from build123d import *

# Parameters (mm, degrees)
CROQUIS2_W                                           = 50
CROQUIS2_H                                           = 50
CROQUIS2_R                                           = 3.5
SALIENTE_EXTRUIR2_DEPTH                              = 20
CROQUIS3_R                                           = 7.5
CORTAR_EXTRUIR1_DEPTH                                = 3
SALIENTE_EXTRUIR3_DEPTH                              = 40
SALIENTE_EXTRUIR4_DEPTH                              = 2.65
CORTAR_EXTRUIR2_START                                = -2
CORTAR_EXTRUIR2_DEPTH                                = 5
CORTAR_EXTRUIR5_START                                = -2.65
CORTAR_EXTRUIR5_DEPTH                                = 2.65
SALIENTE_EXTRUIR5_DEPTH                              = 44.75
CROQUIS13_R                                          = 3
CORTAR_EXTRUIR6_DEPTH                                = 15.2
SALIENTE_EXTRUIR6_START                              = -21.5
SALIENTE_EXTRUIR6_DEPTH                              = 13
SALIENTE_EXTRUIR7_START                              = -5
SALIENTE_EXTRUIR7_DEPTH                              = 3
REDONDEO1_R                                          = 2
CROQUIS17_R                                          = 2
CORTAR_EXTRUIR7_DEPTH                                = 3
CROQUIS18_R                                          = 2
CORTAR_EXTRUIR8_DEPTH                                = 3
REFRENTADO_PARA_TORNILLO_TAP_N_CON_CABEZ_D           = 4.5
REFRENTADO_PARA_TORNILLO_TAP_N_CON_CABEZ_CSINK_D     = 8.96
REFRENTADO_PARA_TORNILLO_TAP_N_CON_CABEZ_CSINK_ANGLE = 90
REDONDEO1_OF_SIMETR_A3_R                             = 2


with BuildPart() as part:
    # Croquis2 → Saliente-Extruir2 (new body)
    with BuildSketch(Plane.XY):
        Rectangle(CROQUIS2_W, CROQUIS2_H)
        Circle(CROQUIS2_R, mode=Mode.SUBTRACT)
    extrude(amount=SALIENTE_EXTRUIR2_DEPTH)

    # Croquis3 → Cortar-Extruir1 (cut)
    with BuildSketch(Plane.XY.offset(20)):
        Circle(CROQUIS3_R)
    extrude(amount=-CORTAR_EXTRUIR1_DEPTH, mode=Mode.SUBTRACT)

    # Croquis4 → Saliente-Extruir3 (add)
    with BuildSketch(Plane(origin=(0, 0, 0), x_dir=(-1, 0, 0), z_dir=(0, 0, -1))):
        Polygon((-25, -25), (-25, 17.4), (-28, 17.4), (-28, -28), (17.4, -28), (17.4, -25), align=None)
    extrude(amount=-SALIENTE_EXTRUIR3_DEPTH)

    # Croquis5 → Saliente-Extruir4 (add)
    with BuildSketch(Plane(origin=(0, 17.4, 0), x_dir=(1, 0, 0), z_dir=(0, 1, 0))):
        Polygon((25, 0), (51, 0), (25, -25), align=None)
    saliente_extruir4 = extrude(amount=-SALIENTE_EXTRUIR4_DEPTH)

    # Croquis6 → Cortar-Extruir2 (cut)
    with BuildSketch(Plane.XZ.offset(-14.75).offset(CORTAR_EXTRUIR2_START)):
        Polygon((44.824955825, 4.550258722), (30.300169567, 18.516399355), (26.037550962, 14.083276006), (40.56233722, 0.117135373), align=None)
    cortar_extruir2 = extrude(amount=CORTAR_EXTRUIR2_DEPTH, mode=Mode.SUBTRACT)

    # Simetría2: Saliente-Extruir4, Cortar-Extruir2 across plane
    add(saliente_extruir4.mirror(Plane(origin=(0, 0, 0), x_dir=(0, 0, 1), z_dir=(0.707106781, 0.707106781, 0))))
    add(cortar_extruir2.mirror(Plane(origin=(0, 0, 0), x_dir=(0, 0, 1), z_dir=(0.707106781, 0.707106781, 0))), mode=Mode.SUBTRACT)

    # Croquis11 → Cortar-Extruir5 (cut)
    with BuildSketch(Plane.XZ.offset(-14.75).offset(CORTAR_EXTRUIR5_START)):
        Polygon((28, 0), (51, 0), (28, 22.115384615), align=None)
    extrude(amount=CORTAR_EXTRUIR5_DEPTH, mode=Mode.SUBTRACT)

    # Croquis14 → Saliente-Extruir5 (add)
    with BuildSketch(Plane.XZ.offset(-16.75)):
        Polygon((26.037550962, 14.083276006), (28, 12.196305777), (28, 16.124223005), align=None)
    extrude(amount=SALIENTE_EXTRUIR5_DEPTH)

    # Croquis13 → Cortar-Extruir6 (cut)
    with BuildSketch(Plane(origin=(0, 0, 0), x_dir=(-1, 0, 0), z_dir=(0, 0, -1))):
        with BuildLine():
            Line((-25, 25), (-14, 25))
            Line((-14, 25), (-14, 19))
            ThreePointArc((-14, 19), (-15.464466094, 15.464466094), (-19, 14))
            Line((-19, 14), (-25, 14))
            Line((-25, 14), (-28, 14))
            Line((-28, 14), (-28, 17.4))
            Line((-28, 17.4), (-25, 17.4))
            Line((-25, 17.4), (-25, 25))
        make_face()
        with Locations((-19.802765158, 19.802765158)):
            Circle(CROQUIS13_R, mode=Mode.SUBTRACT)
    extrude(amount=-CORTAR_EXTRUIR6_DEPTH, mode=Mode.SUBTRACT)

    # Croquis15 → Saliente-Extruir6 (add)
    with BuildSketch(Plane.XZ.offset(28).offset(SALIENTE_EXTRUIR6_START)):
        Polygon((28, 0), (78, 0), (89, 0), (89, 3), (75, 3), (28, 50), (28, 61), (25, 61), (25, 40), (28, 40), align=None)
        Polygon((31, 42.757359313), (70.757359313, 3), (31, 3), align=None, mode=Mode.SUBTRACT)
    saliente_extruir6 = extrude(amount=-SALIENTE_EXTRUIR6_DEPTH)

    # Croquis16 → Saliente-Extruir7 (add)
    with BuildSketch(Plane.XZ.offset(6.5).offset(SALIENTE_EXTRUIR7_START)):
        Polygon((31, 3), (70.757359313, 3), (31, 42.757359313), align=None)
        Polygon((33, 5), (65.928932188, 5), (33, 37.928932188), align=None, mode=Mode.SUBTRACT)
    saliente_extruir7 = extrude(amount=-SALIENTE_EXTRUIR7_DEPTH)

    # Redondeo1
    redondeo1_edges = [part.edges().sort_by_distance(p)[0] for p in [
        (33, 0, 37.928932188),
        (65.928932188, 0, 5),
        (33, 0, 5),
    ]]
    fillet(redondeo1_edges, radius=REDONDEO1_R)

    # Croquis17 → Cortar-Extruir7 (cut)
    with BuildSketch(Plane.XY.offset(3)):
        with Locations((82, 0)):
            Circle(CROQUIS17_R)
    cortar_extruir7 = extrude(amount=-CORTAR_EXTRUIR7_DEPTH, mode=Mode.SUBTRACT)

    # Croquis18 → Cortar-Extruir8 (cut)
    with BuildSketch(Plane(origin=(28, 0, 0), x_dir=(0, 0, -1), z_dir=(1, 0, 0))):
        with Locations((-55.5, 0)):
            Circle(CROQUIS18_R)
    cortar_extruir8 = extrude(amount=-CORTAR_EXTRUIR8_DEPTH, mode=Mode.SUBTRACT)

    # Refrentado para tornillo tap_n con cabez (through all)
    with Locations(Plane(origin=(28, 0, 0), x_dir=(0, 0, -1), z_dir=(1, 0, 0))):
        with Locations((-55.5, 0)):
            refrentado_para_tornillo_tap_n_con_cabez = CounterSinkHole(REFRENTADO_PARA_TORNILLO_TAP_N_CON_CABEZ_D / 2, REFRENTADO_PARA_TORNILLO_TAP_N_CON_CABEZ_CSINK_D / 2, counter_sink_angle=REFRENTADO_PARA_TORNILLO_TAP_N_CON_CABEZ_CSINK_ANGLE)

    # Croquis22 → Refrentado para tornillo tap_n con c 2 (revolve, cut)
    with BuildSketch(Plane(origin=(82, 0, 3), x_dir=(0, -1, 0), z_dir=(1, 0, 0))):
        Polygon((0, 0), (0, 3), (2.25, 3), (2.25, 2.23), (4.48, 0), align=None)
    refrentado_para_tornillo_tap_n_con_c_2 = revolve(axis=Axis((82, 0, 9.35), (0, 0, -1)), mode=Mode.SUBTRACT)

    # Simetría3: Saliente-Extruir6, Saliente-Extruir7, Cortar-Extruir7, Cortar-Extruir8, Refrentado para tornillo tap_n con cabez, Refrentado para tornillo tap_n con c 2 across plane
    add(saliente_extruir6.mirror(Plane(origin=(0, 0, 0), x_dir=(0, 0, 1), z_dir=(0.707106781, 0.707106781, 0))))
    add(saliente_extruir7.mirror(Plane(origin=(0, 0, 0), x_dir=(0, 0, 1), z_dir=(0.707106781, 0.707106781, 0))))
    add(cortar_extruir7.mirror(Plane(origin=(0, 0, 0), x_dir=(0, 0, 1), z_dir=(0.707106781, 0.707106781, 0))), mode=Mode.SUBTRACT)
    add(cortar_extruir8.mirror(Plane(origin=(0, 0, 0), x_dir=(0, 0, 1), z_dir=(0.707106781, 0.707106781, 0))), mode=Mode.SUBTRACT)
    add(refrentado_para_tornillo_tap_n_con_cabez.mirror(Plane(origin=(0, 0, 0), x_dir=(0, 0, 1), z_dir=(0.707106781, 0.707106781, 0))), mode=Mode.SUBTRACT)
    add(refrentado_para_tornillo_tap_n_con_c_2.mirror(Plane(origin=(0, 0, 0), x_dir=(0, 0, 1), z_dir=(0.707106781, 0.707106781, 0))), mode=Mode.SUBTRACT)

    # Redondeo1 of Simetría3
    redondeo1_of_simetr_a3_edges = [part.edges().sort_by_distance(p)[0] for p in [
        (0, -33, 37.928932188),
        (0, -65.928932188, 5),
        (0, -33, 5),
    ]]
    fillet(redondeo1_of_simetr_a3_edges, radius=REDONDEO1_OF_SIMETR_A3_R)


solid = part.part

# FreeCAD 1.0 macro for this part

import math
import FreeCAD as App
import Part
import Sketcher
Q = App.Units.Quantity


def edges_at(feature, points):
    """Names of the edges that pass closest to the given points."""
    edges = feature.Shape.Edges
    near = lambda p: min(range(len(edges)), key=lambda i: edges[i].distToShape(Part.Vertex(*p))[0])
    return sorted({f"Edge{near(p) + 1}" for p in points})


def add_polygon(sketch, points):
    """Adds a closed chain of lines whose ends are joined by coincident constraints."""
    first, n = sketch.GeometryCount, len(points)
    for a, b in zip(points, points[1:] + points[:1]):
        sketch.addGeometry(Part.LineSegment(App.Vector(*a, 0), App.Vector(*b, 0)), False)
    for i in range(n):
        sketch.addConstraint(Sketcher.Constraint("Coincident", first + i, 2, first + (i + 1) % n, 1))

doc = App.newDocument("Part")
body = doc.addObject("PartDesign::Body", "Body")

# Sketch on XY plane
sketch1 = body.newObject("Sketcher::SketchObject", "Sketch")
sketch1.AttachmentSupport = (doc.getObject("XY_Plane"), [""])
sketch1.MapMode = "FlatFace"
add_polygon(sketch1, [(-25, 25), (-25, -25), (25, -25), (25, 25)])  # lines 0-3
sketch1.addGeometry(Part.Circle(App.Vector(0, 0, 0), App.Vector(0, 0, 1), 3.5), False)  # 4
sketch1.addConstraint([
    Sketcher.Constraint("Vertical", 0),
    Sketcher.Constraint("Horizontal", 1),
    Sketcher.Constraint("Vertical", 2),
    Sketcher.Constraint("Horizontal", 3),
    Sketcher.Constraint("Coincident", 4, 3, -1, 1),
    Sketcher.Constraint("Symmetric", 0, 2, 2, 2, -1, 1),
    Sketcher.Constraint("Equal", 3, 0),
    Sketcher.Constraint("Diameter", 4, 7.0),
    Sketcher.Constraint("DistanceX", 1, 1, 1, 2, 50.0),
])
pad1 = body.newObject("PartDesign::Pad", "Pad")
pad1.Profile = sketch1
pad1.Length = 20

# Sketch on XY plane
sketch2 = body.newObject("Sketcher::SketchObject", "Sketch001")
sketch2.AttachmentSupport = (doc.getObject("XY_Plane"), [""])
sketch2.MapMode = "FlatFace"
sketch2.AttachmentOffset = App.Placement(App.Vector(0, 0, 20), App.Rotation())
sketch2.addGeometry(Part.Circle(App.Vector(0, 0, 0), App.Vector(0, 0, 1), 8), False)
sketch2.addConstraint([
    Sketcher.Constraint("Coincident", 0, 3, -1, 1),
    Sketcher.Constraint("Diameter", 0, 15.0),
])
pocket1 = body.newObject("PartDesign::Pocket", "Pocket")
pocket1.Profile = sketch2
pocket1.Length = 3

# Sketch on XY plane
sketch3 = body.newObject("Sketcher::SketchObject", "Sketch002")
sketch3.AttachmentSupport = (doc.getObject("XY_Plane"), [""])
sketch3.MapMode = "FlatFace"
add_polygon(sketch3, [(25, -25), (25, 17.4), (28, 17.4), (28, -28), (-17.4, -28), (-17.4, -25)])  # lines 0-5
sketch3.addConstraint([
    Sketcher.Constraint("Vertical", 0),
    Sketcher.Constraint("Horizontal", 1),
    Sketcher.Constraint("Vertical", 2),
    Sketcher.Constraint("Horizontal", 3),
    Sketcher.Constraint("Vertical", 4),
    Sketcher.Constraint("Horizontal", 5),
    Sketcher.Constraint("Equal", 5, 0),
    Sketcher.Constraint("Equal", 3, 2),
    Sketcher.Constraint("DistanceX", 1, 1, 1, 2, 3.0),
    Sketcher.Constraint("DistanceX", 3, 2, 3, 1, 45.4),
    Sketcher.Constraint("DistanceX", -1, 1, 0, 2, 25.0),
    Sketcher.Constraint("DistanceY", 2, 2, -1, 1, 28.0),
])
pad2 = body.newObject("PartDesign::Pad", "Pad001")
pad2.Profile = sketch3
pad2.Length = 40

# Sketch on XZ plane
sketch4 = body.newObject("Sketcher::SketchObject", "Sketch003")
sketch4.AttachmentSupport = (doc.getObject("XZ_Plane"), [""])
sketch4.MapMode = "FlatFace"
sketch4.AttachmentOffset = App.Placement(App.Vector(0, 0, -17.4), App.Rotation())
add_polygon(sketch4, [(51, 0), (25, 0), (25, 25)])  # lines 0-2
sketch4.addConstraint([
    Sketcher.Constraint("Horizontal", 0),
    Sketcher.Constraint("Vertical", 1),
    Sketcher.Constraint("PointOnObject", 0, 2, -1),
    Sketcher.Constraint("DistanceX", 0, 2, 0, 1, 26.0),
    Sketcher.Constraint("DistanceY", 1, 1, 1, 2, 25.0),
    Sketcher.Constraint("DistanceX", -1, 1, 0, 2, 25.0),
])
pad3 = body.newObject("PartDesign::Pad", "Pad002")
pad3.Profile = sketch4
pad3.Length = 2.65

# Sketch on XZ plane
sketch5 = body.newObject("Sketcher::SketchObject", "Sketch004")
sketch5.AttachmentSupport = (doc.getObject("XZ_Plane"), [""])
sketch5.MapMode = "FlatFace"
sketch5.AttachmentOffset = App.Placement(App.Vector(0, 0, -16.75), App.Rotation())
add_polygon(sketch5, [(45, 5), (30, 19), (26, 14), (41, 0)])  # lines 0-3
sketch5.addConstraint([
    Sketcher.Constraint("Perpendicular", 0, 1),
    Sketcher.Constraint("Perpendicular", 1, 2),
    Sketcher.Constraint("Perpendicular", 2, 3),
    Sketcher.Constraint("Distance", 0, 20.15),
    Sketcher.Constraint("Distance", 1, 6.15),
    Sketcher.Constraint("DistanceY", -1, 1, 0, 2, 18.516399),
    Sketcher.Constraint("DistanceX", -1, 1, 0, 2, 30.30017),
    Sketcher.Constraint("DistanceX", -1, 1, 1, 2, 26.037551),
])
pocket2 = body.newObject("PartDesign::Pocket", "Pocket001")
pocket2.Profile = sketch5
pocket2.Length = 5
pocket2.Reversed = True
doc.recompute()

datumplane = body.newObject("PartDesign::Plane", "DatumPlane")
datumplane.Placement = App.Placement(App.Vector(0, 0, 0), App.Rotation(App.Vector(0.707106781, -0.707106781, 0), App.Vector(0, 0, -1), App.Vector(0.707106781, 0.707106781, 0), "ZXY"))
mirrored = body.newObject("PartDesign::Mirrored", "Mirrored")
mirrored.Originals = [pad3, pocket2]
mirrored.MirrorPlane = (datumplane, [""])
body.Tip = mirrored

# Sketch on XZ plane
sketch6 = body.newObject("Sketcher::SketchObject", "Sketch005")
sketch6.AttachmentSupport = (doc.getObject("XZ_Plane"), [""])
sketch6.MapMode = "FlatFace"
sketch6.AttachmentOffset = App.Placement(App.Vector(0, 0, -17.4), App.Rotation())
add_polygon(sketch6, [(28, 0), (51, 0), (28, 22)])  # lines 0-2
sketch6.addConstraint([
    Sketcher.Constraint("Horizontal", 0),
    Sketcher.Constraint("Vertical", 2),
    Sketcher.Constraint("PointOnObject", 0, 2, -1),
    Sketcher.Constraint("DistanceX", 0, 1, 0, 2, 23.0),
    Sketcher.Constraint("DistanceX", -1, 1, 0, 2, 51.0),
    Sketcher.Constraint("DistanceY", 2, 2, 2, 1, 22.115385),
])
pocket3 = body.newObject("PartDesign::Pocket", "Pocket002")
pocket3.Profile = sketch6
pocket3.Length = 2.65
pocket3.Reversed = True

# Sketch on XZ plane
sketch7 = body.newObject("Sketcher::SketchObject", "Sketch006")
sketch7.AttachmentSupport = (doc.getObject("XZ_Plane"), [""])
sketch7.MapMode = "FlatFace"
sketch7.AttachmentOffset = App.Placement(App.Vector(0, 0, -16.75), App.Rotation())
add_polygon(sketch7, [(26, 14.1), (28, 12.2), (28, 16.1)])  # lines 0-2
sketch7.addConstraint([
    Sketcher.Constraint("Vertical", 1),
    Sketcher.Constraint("Perpendicular", 0, 2),
    Sketcher.Constraint("DistanceX", -1, 1, 0, 2, 28.0),
    Sketcher.Constraint("DistanceY", 1, 1, 1, 2, 3.927917),
    Sketcher.Constraint("DistanceX", -1, 1, 2, 2, 26.037551),
    Sketcher.Constraint("DistanceY", -1, 1, 0, 2, 12.196306),
])
pad4 = body.newObject("PartDesign::Pad", "Pad003")
pad4.Profile = sketch7
pad4.Length = 44.75

# Sketch on XY plane
sketch8 = body.newObject("Sketcher::SketchObject", "Sketch007")
sketch8.AttachmentSupport = (doc.getObject("XY_Plane"), [""])
sketch8.MapMode = "FlatFace"
sketch8.addGeometry([
    Part.LineSegment(App.Vector(14, 25, 0), App.Vector(25, 25, 0)),  # 0
    Part.LineSegment(App.Vector(25, 25, 0), App.Vector(25, 17.4, 0)),  # 1
    Part.LineSegment(App.Vector(25, 17.4, 0), App.Vector(28, 17.4, 0)),  # 2
    Part.LineSegment(App.Vector(28, 17.4, 0), App.Vector(28, 14, 0)),  # 3
    Part.LineSegment(App.Vector(28, 14, 0), App.Vector(19, 14, 0)),  # 4
    Part.ArcOfCircle(Part.Circle(App.Vector(19, 19, 0), App.Vector(0, 0, 1), 5), math.radians(180), math.radians(270)),  # 5
    Part.LineSegment(App.Vector(14, 19, 0), App.Vector(14, 25, 0)),  # 6
    Part.Circle(App.Vector(19.8, 19.8, 0), App.Vector(0, 0, 1), 3),  # 7
], False)
sketch8.addConstraint([
    Sketcher.Constraint("Coincident", 0, 2, 1, 1),
    Sketcher.Constraint("Coincident", 1, 2, 2, 1),
    Sketcher.Constraint("Coincident", 2, 2, 3, 1),
    Sketcher.Constraint("Coincident", 3, 2, 4, 1),
    Sketcher.Constraint("Tangent", 4, 2, 5, 2),
    Sketcher.Constraint("Tangent", 5, 1, 6, 1),
    Sketcher.Constraint("Coincident", 6, 2, 0, 1),
    Sketcher.Constraint("Horizontal", 0),
    Sketcher.Constraint("Vertical", 1),
    Sketcher.Constraint("Horizontal", 2),
    Sketcher.Constraint("Vertical", 3),
    Sketcher.Constraint("Horizontal", 4),
    Sketcher.Constraint("Vertical", 6),
    Sketcher.Constraint("Diameter", 7, 6.0),
    Sketcher.Constraint("Radius", 5, 5.0),
    Sketcher.Constraint("DistanceX", 0, 1, 0, 2, 11.0),
    Sketcher.Constraint("DistanceX", 2, 1, 2, 2, 3.0),
    Sketcher.Constraint("DistanceY", 6, 1, 6, 2, 6.0),
    Sketcher.Constraint("DistanceY", 1, 2, 1, 1, 7.6),
    Sketcher.Constraint("DistanceX", -1, 1, 5, 3, 19.0),
    Sketcher.Constraint("DistanceY", -1, 1, 5, 3, 19.0),
    Sketcher.Constraint("DistanceX", -1, 1, 7, 3, 19.802765),
    Sketcher.Constraint("DistanceY", -1, 1, 7, 3, 19.802765),
])
pocket4 = body.newObject("PartDesign::Pocket", "Pocket003")
pocket4.Profile = sketch8
pocket4.Length = 15.2
pocket4.Reversed = True

# Sketch on XZ plane
sketch9 = body.newObject("Sketcher::SketchObject", "Sketch008")
sketch9.AttachmentSupport = (doc.getObject("XZ_Plane"), [""])
sketch9.MapMode = "FlatFace"
sketch9.AttachmentOffset = App.Placement(App.Vector(0, 0, 6.5), App.Rotation())
add_polygon(sketch9, [(28, 0), (89, 0), (89, 3), (75, 3), (28, 50), (28, 61), (25, 61), (25, 40), (28, 40)])  # lines 0-8
add_polygon(sketch9, [(31, 3), (31, 42.8), (70.8, 3)])  # lines 9-11
sketch9.addConstraint([
    Sketcher.Constraint("Horizontal", 0),
    Sketcher.Constraint("Vertical", 1),
    Sketcher.Constraint("Horizontal", 2),
    Sketcher.Constraint("Vertical", 4),
    Sketcher.Constraint("Horizontal", 5),
    Sketcher.Constraint("Vertical", 6),
    Sketcher.Constraint("Horizontal", 7),
    Sketcher.Constraint("Vertical", 8),
    Sketcher.Constraint("Vertical", 9),
    Sketcher.Constraint("Horizontal", 11),
    Sketcher.Constraint("PointOnObject", 0, 2, -1),
    Sketcher.Constraint("Parallel", 3, 10),
    Sketcher.Constraint("Horizontal", 2, 2, 10, 2),
    Sketcher.Constraint("Vertical", 4, 2, 7, 2),
    Sketcher.Constraint("Equal", 7, 1),
    Sketcher.Constraint("Equal", 11, 9),
    Sketcher.Constraint("DistanceX", 0, 1, 0, 2, 61.0),
    Sketcher.Constraint("DistanceX", 2, 2, 2, 1, 14.0),
    Sketcher.Constraint("DistanceX", 5, 2, 5, 1, 3.0),
    Sketcher.Constraint("DistanceY", 4, 1, 4, 2, 11.0),
    Sketcher.Constraint("DistanceY", 6, 2, 6, 1, 21.0),
    Sketcher.Constraint("DistanceX", -1, 1, 0, 2, 89.0),
    Sketcher.Constraint("DistanceX", -1, 1, 9, 2, 31.0),
    Sketcher.Constraint("DistanceX", 11, 2, 11, 1, 39.757359),
])
pad5 = body.newObject("PartDesign::Pad", "Pad004")
pad5.Profile = sketch9
pad5.Length = 13
pad5.Reversed = True

# Sketch on XZ plane
sketch10 = body.newObject("Sketcher::SketchObject", "Sketch009")
sketch10.AttachmentSupport = (doc.getObject("XZ_Plane"), [""])
sketch10.MapMode = "FlatFace"
sketch10.AttachmentOffset = App.Placement(App.Vector(0, 0, 1.5), App.Rotation())
add_polygon(sketch10, [(31, 3), (71, 3), (31, 43)])  # lines 0-2
add_polygon(sketch10, [(66, 5), (33, 5), (33, 38)])  # lines 3-5
sketch10.addConstraint([
    Sketcher.Constraint("Horizontal", 0),
    Sketcher.Constraint("Vertical", 2),
    Sketcher.Constraint("Horizontal", 3),
    Sketcher.Constraint("Vertical", 4),
    Sketcher.Constraint("Parallel", 1, 5),
    Sketcher.Constraint("Equal", 0, 2),
    Sketcher.Constraint("DistanceY", -1, 1, 0, 2, 3.0),
    Sketcher.Constraint("DistanceX", -1, 1, 1, 2, 31.0),
    Sketcher.Constraint("DistanceX", -1, 1, 3, 2, 33.0),
    Sketcher.Constraint("DistanceY", -1, 1, 3, 2, 5.0),
    Sketcher.Constraint("DistanceX", 0, 1, 0, 2, 39.757359),
    Sketcher.Constraint("DistanceX", 3, 2, 3, 1, 32.928932),
])
pad6 = body.newObject("PartDesign::Pad", "Pad005")
pad6.Profile = sketch10
pad6.Length = 3
pad6.Reversed = True
doc.recompute()

fillet = body.newObject("PartDesign::Fillet", "Fillet")
fillet.Base = (pad6, edges_at(pad6, [(33, 0, 37.929), (65.929, 0, 5), (33, 0, 5)]))
fillet.Radius = 2

# Sketch on XY plane
sketch11 = body.newObject("Sketcher::SketchObject", "Sketch010")
sketch11.AttachmentSupport = (doc.getObject("XY_Plane"), [""])
sketch11.MapMode = "FlatFace"
sketch11.AttachmentOffset = App.Placement(App.Vector(0, 0, 3), App.Rotation())
sketch11.addGeometry(Part.Circle(App.Vector(82, 0, 0), App.Vector(0, 0, 1), 2), False)
sketch11.addConstraint([
    Sketcher.Constraint("PointOnObject", 0, 3, -1),
    Sketcher.Constraint("Diameter", 0, 4.0),
    Sketcher.Constraint("DistanceX", -1, 1, 0, 3, 82.0),
])
pocket5 = body.newObject("PartDesign::Pocket", "Pocket004")
pocket5.Profile = sketch11
pocket5.Length = 3

# Sketch on YZ plane
sketch12 = body.newObject("Sketcher::SketchObject", "Sketch011")
sketch12.AttachmentSupport = (doc.getObject("YZ_Plane"), [""])
sketch12.MapMode = "FlatFace"
sketch12.AttachmentOffset = App.Placement(App.Vector(0, 0, 28), App.Rotation())
sketch12.addGeometry(Part.Circle(App.Vector(0, 55.5, 0), App.Vector(0, 0, 1), 2), False)
sketch12.addConstraint([
    Sketcher.Constraint("PointOnObject", 0, 3, -2),
    Sketcher.Constraint("Diameter", 0, 4.0),
    Sketcher.Constraint("DistanceY", -1, 1, 0, 3, 55.5),
])
pocket6 = body.newObject("PartDesign::Pocket", "Pocket005")
pocket6.Profile = sketch12
pocket6.Length = 3

# Sketch on YZ plane
sketch13 = body.newObject("Sketcher::SketchObject", "Sketch012")
sketch13.AttachmentSupport = (doc.getObject("YZ_Plane"), [""])
sketch13.MapMode = "FlatFace"
sketch13.AttachmentOffset = App.Placement(App.Vector(0, 0, 28), App.Rotation())
sketch13.addGeometry(Part.Circle(App.Vector(0, 55.5, 0), App.Vector(0, 0, 1), 2.2), False)
sketch13.addConstraint([
    Sketcher.Constraint("PointOnObject", 0, 3, -2),
    Sketcher.Constraint("Diameter", 0, 4.5),
    Sketcher.Constraint("DistanceY", -1, 1, 0, 3, 55.5),
])
doc.recompute()
hole = body.newObject("PartDesign::Hole", "Hole")
hole.Profile = sketch13
hole.ThreadType = "None"
hole.Diameter = 4.5
hole.DepthType = "ThroughAll"
hole.HoleCutType = "Countersink"
hole.HoleCutDiameter = 8.96
hole.HoleCutCountersinkAngle = 90

# Sketch on YZ plane
sketch14 = body.newObject("Sketcher::SketchObject", "Sketch013")
sketch14.AttachmentSupport = (doc.getObject("YZ_Plane"), [""])
sketch14.MapMode = "FlatFace"
sketch14.AttachmentOffset = App.Placement(App.Vector(0, 0, 82), App.Rotation())
add_polygon(sketch14, [(0, 0), (0, 3), (-4.5, 3), (-2.2, 0.8), (-2.2, 0)])  # lines 0-4
sketch14.addConstraint([
    Sketcher.Constraint("Vertical", 0),
    Sketcher.Constraint("Horizontal", 1),
    Sketcher.Constraint("Vertical", 3),
    Sketcher.Constraint("Horizontal", 4),
    Sketcher.Constraint("Coincident", 4, 2, -1, 1),
    Sketcher.Constraint("DistanceY", 0, 1, 0, 2, 3.0),
    Sketcher.Constraint("Angle", 2, Q("-45 deg")),
    Sketcher.Constraint("DistanceX", 1, 2, 1, 1, 4.48),
    Sketcher.Constraint("DistanceX", 4, 1, 4, 2, 2.25),
])
groove = body.newObject("PartDesign::Groove", "Groove")
groove.Profile = sketch14
groove.ReferenceAxis = (sketch14, ["V_Axis"])
groove.Angle = 360
doc.recompute()

datumplane2 = body.newObject("PartDesign::Plane", "DatumPlane001")
datumplane2.Placement = App.Placement(App.Vector(0, 0, 0), App.Rotation(App.Vector(0.707106781, -0.707106781, 0), App.Vector(0, 0, -1), App.Vector(0.707106781, 0.707106781, 0), "ZXY"))
mirrored2 = body.newObject("PartDesign::Mirrored", "Mirrored001")
mirrored2.Originals = [pad5, pad6, pocket5, pocket6, hole, groove]
mirrored2.MirrorPlane = (datumplane2, [""])
body.Tip = mirrored2
doc.recompute()

fillet2 = body.newObject("PartDesign::Fillet", "Fillet001")
fillet2.Base = (mirrored2, edges_at(mirrored2, [(0, -33, 37.929), (0, -65.929, 5), (0, -33, 5)]))
fillet2.Radius = 2

doc.recompute()
